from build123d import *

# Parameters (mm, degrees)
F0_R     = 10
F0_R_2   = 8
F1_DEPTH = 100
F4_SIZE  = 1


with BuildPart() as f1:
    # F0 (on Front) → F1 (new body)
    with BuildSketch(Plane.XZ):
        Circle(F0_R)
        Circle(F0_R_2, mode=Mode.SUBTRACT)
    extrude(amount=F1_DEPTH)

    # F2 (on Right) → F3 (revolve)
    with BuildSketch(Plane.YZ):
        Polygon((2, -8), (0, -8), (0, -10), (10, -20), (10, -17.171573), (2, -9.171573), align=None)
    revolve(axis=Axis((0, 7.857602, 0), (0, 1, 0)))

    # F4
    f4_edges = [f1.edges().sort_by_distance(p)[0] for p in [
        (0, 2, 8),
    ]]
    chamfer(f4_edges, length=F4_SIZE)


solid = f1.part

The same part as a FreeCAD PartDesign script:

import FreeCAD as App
import Part
import Sketcher

V = App.Vector
Q = App.Units.Quantity


def edges_at(feature, points):
    """Names of the edges that pass closest to the given points."""
    edges = feature.Shape.Edges
    near = lambda p: min(range(len(edges)), key=lambda i: edges[i].distToShape(Part.Vertex(*p))[0])
    return sorted({f"Edge{near(p) + 1}" for p in points})


def add_polygon(sketch, points):
    """Adds a closed chain of lines whose ends are joined by coincident constraints."""
    first, n = sketch.GeometryCount, len(points)
    for a, b in zip(points, points[1:] + points[:1]):
        sketch.addGeometry(Part.LineSegment(App.Vector(*a, 0), App.Vector(*b, 0)), False)
    for i in range(n):
        sketch.addConstraint(Sketcher.Constraint("Coincident", first + i, 2, first + (i + 1) % n, 1))

doc = App.newDocument("Part")
params = doc.addObject("Spreadsheet::Sheet", "Params")
for row, (alias, value) in enumerate([
    ("sketch1_diameter", "20 mm"),
    ("sketch1_diameter2", "16 mm"),
    ("pad1_length", "100 mm"),
    ("sketch2_width", "2 mm"),
    ("revolution_angle", "360 deg"),
    ("chamfer_size", "1 mm"),
], start=1):
    params.set(f"A{row}", alias)
    params.set(f"B{row}", "=" + value)
    params.setAlias(f"B{row}", alias)

body = doc.addObject("PartDesign::Body", "Body")

# Sketch on XZ plane
sketch1 = body.newObject("Sketcher::SketchObject", "Sketch")
sketch1.AttachmentSupport = (doc.getObject("XZ_Plane"), [""])
sketch1.MapMode = "FlatFace"
sketch1.addGeometry([
    Part.Circle(V(0, 0, 0), V(0, 0, 1), 10),
    Part.Circle(V(0, 0, 0), V(0, 0, 1), 8),
], False)
sketch1.addConstraint([
    Sketcher.Constraint("Coincident", 0, 3, -1, 1),
    Sketcher.Constraint("Coincident", 1, 3, -1, 1),
    Sketcher.Constraint("Diameter", 0, 20.0),
    Sketcher.Constraint("Diameter", 1, 16.0),
])
sketch1.setExpression("Constraints[2]", "Params.sketch1_diameter")
sketch1.setExpression("Constraints[3]", "Params.sketch1_diameter2")
pad1 = body.newObject("PartDesign::Pad", "Pad")
pad1.Profile = sketch1
pad1.setExpression("Length", "Params.pad1_length")

# Sketch on YZ plane
sketch2 = body.newObject("Sketcher::SketchObject", "Sketch001")
sketch2.AttachmentSupport = (doc.getObject("YZ_Plane"), [""])
sketch2.MapMode = "FlatFace"
add_polygon(sketch2, [(2, -8), (0, -8), (0, -10), (10, -20), (10, -17.171573), (2, -9.171573)])  # lines 0-5
sketch2.addConstraint([
    Sketcher.Constraint("Horizontal", 0),
    Sketcher.Constraint("Vertical", 1),
    Sketcher.Constraint("Vertical", 3),
    Sketcher.Constraint("Vertical", 5),
    Sketcher.Constraint("PointOnObject", 0, 2, -2),
    Sketcher.Constraint("Parallel", 2, 4),
    Sketcher.Constraint("Equal", 0, 1),
    Sketcher.Constraint("DistanceX", 0, 2, 0, 1, 2.0),
    Sketcher.Constraint("Angle", 2, Q("-45 deg")),
    Sketcher.Constraint("DistanceY", 0, 2, -1, 1, 8.0),
    Sketcher.Constraint("DistanceX", -1, 1, 2, 2, 10.0),
    Sketcher.Constraint("DistanceY", 3, 1, 3, 2, 2.828427),
])
sketch2.setExpression("Constraints[13]", "Params.sketch2_width")
revolution = body.newObject("PartDesign::Revolution", "Revolution")
revolution.Profile = sketch2
revolution.ReferenceAxis = (sketch2, ["H_Axis"])
revolution.setExpression("Angle", "Params.revolution_angle")
doc.recompute()

chamfer = body.newObject("PartDesign::Chamfer", "Chamfer")
chamfer.Base = (revolution, edges_at(revolution, [(0, 2, 8)]))
chamfer.setExpression("Size", "Params.chamfer_size")

doc.recompute()
